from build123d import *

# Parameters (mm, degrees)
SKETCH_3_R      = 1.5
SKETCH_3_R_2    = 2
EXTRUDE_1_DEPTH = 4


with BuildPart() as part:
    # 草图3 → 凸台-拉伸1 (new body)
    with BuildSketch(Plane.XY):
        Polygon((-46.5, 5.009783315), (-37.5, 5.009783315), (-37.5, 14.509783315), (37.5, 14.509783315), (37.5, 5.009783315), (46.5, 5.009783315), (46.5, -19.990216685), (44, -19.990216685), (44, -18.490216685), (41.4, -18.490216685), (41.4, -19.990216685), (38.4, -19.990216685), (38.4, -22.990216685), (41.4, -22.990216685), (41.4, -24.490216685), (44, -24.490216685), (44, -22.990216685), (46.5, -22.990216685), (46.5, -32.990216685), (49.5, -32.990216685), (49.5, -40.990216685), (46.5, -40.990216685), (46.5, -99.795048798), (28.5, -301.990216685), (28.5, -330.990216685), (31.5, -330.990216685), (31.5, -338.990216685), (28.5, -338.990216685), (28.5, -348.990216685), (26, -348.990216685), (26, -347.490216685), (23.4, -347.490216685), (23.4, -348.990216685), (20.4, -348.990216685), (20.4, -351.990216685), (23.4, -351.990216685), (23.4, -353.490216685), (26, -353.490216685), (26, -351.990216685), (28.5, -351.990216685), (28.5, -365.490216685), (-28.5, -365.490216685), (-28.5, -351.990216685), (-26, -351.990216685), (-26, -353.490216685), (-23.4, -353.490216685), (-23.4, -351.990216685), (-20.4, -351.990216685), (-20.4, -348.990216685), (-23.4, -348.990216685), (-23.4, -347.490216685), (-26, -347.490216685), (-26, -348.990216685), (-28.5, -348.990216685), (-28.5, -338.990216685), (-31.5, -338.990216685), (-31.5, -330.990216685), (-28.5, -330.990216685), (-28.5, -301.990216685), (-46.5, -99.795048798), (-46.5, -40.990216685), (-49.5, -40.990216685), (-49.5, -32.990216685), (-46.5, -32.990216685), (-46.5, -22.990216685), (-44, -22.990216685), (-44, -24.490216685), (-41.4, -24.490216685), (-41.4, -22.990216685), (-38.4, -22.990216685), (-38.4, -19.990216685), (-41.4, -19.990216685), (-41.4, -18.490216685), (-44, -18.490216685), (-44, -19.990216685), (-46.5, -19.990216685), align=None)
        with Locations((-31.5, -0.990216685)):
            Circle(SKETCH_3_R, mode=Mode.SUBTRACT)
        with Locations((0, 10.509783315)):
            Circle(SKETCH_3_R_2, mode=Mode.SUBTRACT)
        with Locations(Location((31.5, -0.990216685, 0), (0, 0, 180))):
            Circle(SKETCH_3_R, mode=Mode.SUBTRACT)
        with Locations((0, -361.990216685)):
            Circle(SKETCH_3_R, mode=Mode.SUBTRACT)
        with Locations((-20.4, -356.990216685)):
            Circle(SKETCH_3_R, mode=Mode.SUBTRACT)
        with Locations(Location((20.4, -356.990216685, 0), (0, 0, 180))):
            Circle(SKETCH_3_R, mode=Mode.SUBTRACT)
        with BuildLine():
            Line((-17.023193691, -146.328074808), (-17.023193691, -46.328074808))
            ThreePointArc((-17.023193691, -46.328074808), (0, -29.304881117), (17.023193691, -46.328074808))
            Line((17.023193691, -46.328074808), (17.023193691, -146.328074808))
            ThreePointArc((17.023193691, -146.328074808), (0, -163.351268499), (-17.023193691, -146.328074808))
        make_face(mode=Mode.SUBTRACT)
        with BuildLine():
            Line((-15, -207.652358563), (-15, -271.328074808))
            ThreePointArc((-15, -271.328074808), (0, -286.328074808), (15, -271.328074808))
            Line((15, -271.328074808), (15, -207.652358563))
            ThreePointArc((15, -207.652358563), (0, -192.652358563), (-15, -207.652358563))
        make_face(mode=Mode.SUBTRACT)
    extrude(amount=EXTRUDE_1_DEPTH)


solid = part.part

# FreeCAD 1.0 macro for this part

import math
import FreeCAD as App
import Part
import Sketcher
Q = App.Units.Quantity


def add_polygon(sketch, points):
    """Adds a closed chain of lines whose ends are joined by coincident constraints."""
    first, n = sketch.GeometryCount, len(points)
    for a, b in zip(points, points[1:] + points[:1]):
        sketch.addGeometry(Part.LineSegment(App.Vector(*a, 0), App.Vector(*b, 0)), False)
    for i in range(n):
        sketch.addConstraint(Sketcher.Constraint("Coincident", first + i, 2, first + (i + 1) % n, 1))

doc = App.newDocument("Part")
body = doc.addObject("PartDesign::Body", "Body")

sketch1 = body.newObject("Sketcher::SketchObject", "Sketch")
sketch1.AttachmentSupport = (doc.getObject("XY_Plane"), [""])
sketch1.MapMode = "FlatFace"
add_polygon(sketch1, [(-37.5, 5), (-46.5, 5), (-46.5, -20), (-44, -20), (-44, -18.5), (-41.4, -18.5), (-41.4, -20), (-38.4, -20), (-38.4, -23), (-41.4, -23), (-41.4, -24.5), (-44, -24.5), (-44, -23), (-46.5, -23), (-46.5, -33), (-49.5, -33), (-49.5, -41), (-46.5, -41), (-46.5, -99.8), (-28.5, -302), (-28.5, -331), (-31.5, -331), (-31.5, -339), (-28.5, -339), (-28.5, -349), (-26, -349), (-26, -347.5), (-23.4, -347.5), (-23.4, -349), (-20.4, -349), (-20.4, -352), (-23.4, -352), (-23.4, -353.5), (-26, -353.5), (-26, -352), (-28.5, -352), (-28.5, -365.5), (28.5, -365.5), (28.5, -352), (26, -352), (26, -353.5), (23.4, -353.5), (23.4, -352), (20.4, -352), (20.4, -349), (23.4, -349), (23.4, -347.5), (26, -347.5), (26, -349), (28.5, -349), (28.5, -339), (31.5, -339), (31.5, -331), (28.5, -331), (28.5, -302), (46.5, -99.8), (46.5, -41), (49.5, -41), (49.5, -33), (46.5, -33), (46.5, -23), (44, -23), (44, -24.5), (41.4, -24.5), (41.4, -23), (38.4, -23), (38.4, -20), (41.4, -20), (41.4, -18.5), (44, -18.5), (44, -20), (46.5, -20), (46.5, 5), (37.5, 5), (37.5, 14.5), (-37.5, 14.5)])
sketch1.addGeometry(Part.Circle(App.Vector(20.4, -357, 0), App.Vector(0, 0, 1), 1.5), False)
sketch1.addGeometry(Part.Circle(App.Vector(0, -362, 0), App.Vector(0, 0, 1), 1.5), False)
sketch1.addGeometry(Part.Circle(App.Vector(-20.4, -357, 0), App.Vector(0, 0, 1), 1.5), False)
sketch1.addGeometry(Part.ArcOfCircle(Part.Circle(App.Vector(0, -207.7, 0), App.Vector(0, 0, 1), 15), math.radians(0), math.radians(180)), False)
sketch1.addGeometry(Part.LineSegment(App.Vector(15, -207.7, 0), App.Vector(15, -271.3, 0)), False)
sketch1.addGeometry(Part.ArcOfCircle(Part.Circle(App.Vector(0, -271.3, 0), App.Vector(0, 0, 1), 15), math.radians(180), math.radians(360)), False)
sketch1.addGeometry(Part.LineSegment(App.Vector(-15, -271.3, 0), App.Vector(-15, -207.7, 0)), False)
sketch1.addGeometry(Part.Circle(App.Vector(31.5, -1, 0), App.Vector(0, 0, 1), 1.5), False)
sketch1.addGeometry(Part.LineSegment(App.Vector(-17, -146.3, 0), App.Vector(-17, -46.3, 0)), False)
sketch1.addGeometry(Part.ArcOfCircle(Part.Circle(App.Vector(0, -46.3, 0), App.Vector(0, 0, 1), 17), math.radians(0), math.radians(180)), False)
sketch1.addGeometry(Part.LineSegment(App.Vector(17, -46.3, 0), App.Vector(17, -146.3, 0)), False)
sketch1.addGeometry(Part.ArcOfCircle(Part.Circle(App.Vector(0, -146.3, 0), App.Vector(0, 0, 1), 17), math.radians(180), math.radians(360)), False)
sketch1.addGeometry(Part.Circle(App.Vector(0, 10.5, 0), App.Vector(0, 0, 1), 2), False)
sketch1.addGeometry(Part.Circle(App.Vector(-31.5, -1, 0), App.Vector(0, 0, 1), 1.5), False)
sketch1.addConstraint([
    Sketcher.Constraint("Tangent", 79, 1, 80, 1),
    Sketcher.Constraint("Tangent", 80, 2, 81, 2),
    Sketcher.Constraint("Tangent", 81, 1, 82, 1),
    Sketcher.Constraint("Tangent", 82, 2, 79, 2),
    Sketcher.Constraint("Tangent", 84, 2, 85, 2),
    Sketcher.Constraint("Tangent", 85, 1, 86, 1),
    Sketcher.Constraint("Tangent", 86, 2, 87, 2),
    Sketcher.Constraint("Tangent", 87, 1, 84, 1),
    Sketcher.Constraint("Horizontal", 0),
    Sketcher.Constraint("Vertical", 1),
    Sketcher.Constraint("Horizontal", 2),
    Sketcher.Constraint("Vertical", 3),
    Sketcher.Constraint("Horizontal", 4),
    Sketcher.Constraint("Vertical", 5),
    Sketcher.Constraint("Horizontal", 6),
    Sketcher.Constraint("Vertical", 7),
    Sketcher.Constraint("Horizontal", 8),
    Sketcher.Constraint("Vertical", 9),
    Sketcher.Constraint("Horizontal", 10),
    Sketcher.Constraint("Vertical", 11),
    Sketcher.Constraint("Horizontal", 12),
    Sketcher.Constraint("Vertical", 13),
    Sketcher.Constraint("Horizontal", 14),
    Sketcher.Constraint("Vertical", 15),
    Sketcher.Constraint("Horizontal", 16),
    Sketcher.Constraint("Vertical", 17),
    Sketcher.Constraint("Vertical", 19),
    Sketcher.Constraint("Horizontal", 20),
    Sketcher.Constraint("Vertical", 21),
    Sketcher.Constraint("Horizontal", 22),
    Sketcher.Constraint("Vertical", 23),
    Sketcher.Constraint("Horizontal", 24),
    Sketcher.Constraint("Vertical", 25),
    Sketcher.Constraint("Horizontal", 26),
    Sketcher.Constraint("Vertical", 27),
    Sketcher.Constraint("Horizontal", 28),
    Sketcher.Constraint("Vertical", 29),
    Sketcher.Constraint("Horizontal", 30),
    Sketcher.Constraint("Vertical", 31),
    Sketcher.Constraint("Horizontal", 32),
    Sketcher.Constraint("Vertical", 33),
    Sketcher.Constraint("Horizontal", 34),
    Sketcher.Constraint("Vertical", 35),
    Sketcher.Constraint("Horizontal", 36),
    Sketcher.Constraint("Vertical", 37),
    Sketcher.Constraint("Horizontal", 38),
    Sketcher.Constraint("Vertical", 39),
    Sketcher.Constraint("Horizontal", 40),
    Sketcher.Constraint("Vertical", 41),
    Sketcher.Constraint("Horizontal", 42),
    Sketcher.Constraint("Vertical", 43),
    Sketcher.Constraint("Horizontal", 44),
    Sketcher.Constraint("Vertical", 45),
    Sketcher.Constraint("Horizontal", 46),
    Sketcher.Constraint("Vertical", 47),
    Sketcher.Constraint("Horizontal", 48),
    Sketcher.Constraint("Vertical", 49),
    Sketcher.Constraint("Horizontal", 50),
    Sketcher.Constraint("Vertical", 51),
    Sketcher.Constraint("Horizontal", 52),
    Sketcher.Constraint("Vertical", 53),
    Sketcher.Constraint("Vertical", 55),
    Sketcher.Constraint("Horizontal", 56),
    Sketcher.Constraint("Vertical", 57),
    Sketcher.Constraint("Horizontal", 58),
    Sketcher.Constraint("Vertical", 59),
    Sketcher.Constraint("Horizontal", 60),
    Sketcher.Constraint("Vertical", 61),
    Sketcher.Constraint("Horizontal", 62),
    Sketcher.Constraint("Vertical", 63),
    Sketcher.Constraint("Horizontal", 64),
    Sketcher.Constraint("Vertical", 65),
    Sketcher.Constraint("Horizontal", 66),
    Sketcher.Constraint("Vertical", 67),
    Sketcher.Constraint("Horizontal", 68),
    Sketcher.Constraint("Vertical", 69),
    Sketcher.Constraint("Horizontal", 70),
    Sketcher.Constraint("Vertical", 71),
    Sketcher.Constraint("Horizontal", 72),
    Sketcher.Constraint("Vertical", 73),
    Sketcher.Constraint("Horizontal", 74),
    Sketcher.Constraint("Vertical", 75),
    Sketcher.Constraint("Vertical", 80),
    Sketcher.Constraint("Vertical", 82),
    Sketcher.Constraint("Vertical", 84),
    Sketcher.Constraint("Vertical", 86),
    Sketcher.Constraint("Equal", 76, 77),
    Sketcher.Constraint("Equal", 77, 78),
    Sketcher.Constraint("Equal", 78, 83),
    Sketcher.Constraint("Equal", 83, 89),
    Sketcher.Constraint("Symmetric", 76, 3, 78, 3, -2),
    Sketcher.Constraint("Symmetric", 83, 3, 89, 3, -2),
    Sketcher.Constraint("Symmetric", 34, 2, 37, 2, -2),
    Sketcher.Constraint("Symmetric", 32, 2, 39, 2, -2),
    Sketcher.Constraint("Symmetric", 30, 2, 41, 2, -2),
    Sketcher.Constraint("Symmetric", 28, 2, 43, 2, -2),
    Sketcher.Constraint("Symmetric", 26, 2, 45, 2, -2),
    Sketcher.Constraint("Symmetric", 24, 2, 47, 2, -2),
    Sketcher.Constraint("Symmetric", 22, 2, 49, 2, -2),
    Sketcher.Constraint("Symmetric", 20, 2, 51, 2, -2),
    Sketcher.Constraint("Symmetric", 18, 2, 53, 2, -2),
    Sketcher.Constraint("Symmetric", 17, 2, 54, 2, -2),
    Sketcher.Constraint("Symmetric", 15, 2, 56, 2, -2),
    Sketcher.Constraint("Symmetric", 13, 2, 58, 2, -2),
    Sketcher.Constraint("Symmetric", 11, 2, 60, 2, -2),
    Sketcher.Constraint("Symmetric", 9, 2, 62, 2, -2),
    Sketcher.Constraint("Symmetric", 7, 2, 64, 2, -2),
    Sketcher.Constraint("Symmetric", 5, 2, 66, 2, -2),
    Sketcher.Constraint("Symmetric", 3, 2, 68, 2, -2),
    Sketcher.Constraint("Symmetric", 1, 2, 70, 2, -2),
    Sketcher.Constraint("Symmetric", 72, 2, 75, 2, -2),
    Sketcher.Constraint("PointOnObject", 77, 3, -2),
    Sketcher.Constraint("PointOnObject", 79, 3, -2),
    Sketcher.Constraint("PointOnObject", 85, 3, -2),
    Sketcher.Constraint("PointOnObject", 88, 3, -2),
    Sketcher.Constraint("Horizontal", 2, 2, 5, 2),
    Sketcher.Constraint("Horizontal", 8, 2, 11, 2),
    Sketcher.Constraint("Horizontal", 24, 2, 27, 2),
    Sketcher.Constraint("Horizontal", 30, 2, 33, 2),
    Sketcher.Constraint("Vertical", 5, 2, 8, 2),
    Sketcher.Constraint("Vertical", 3, 2, 10, 2),
    Sketcher.Constraint("Vertical", 1, 2, 12, 2),
    Sketcher.Constraint("Vertical", 13, 2, 16, 2),
    Sketcher.Constraint("Vertical", 89, 3, 20, 2),
    Sketcher.Constraint("Vertical", 19, 2, 22, 2),
    Sketcher.Constraint("Vertical", 78, 3, 28, 2),
    Sketcher.Constraint("Vertical", 27, 2, 30, 2),
    Sketcher.Constraint("Vertical", 25, 2, 32, 2),
    Sketcher.Constraint("Vertical", 23, 2, 34, 2),
    Sketcher.Constraint("Equal", 8, 14),
    Sketcher.Constraint("Equal", 16, 20),
    Sketcher.Constraint("Equal", 12, 24),
    Sketcher.Constraint("Equal", 10, 26),
    Sketcher.Constraint("Equal", 22, 28),
    Sketcher.Constraint("Equal", 66, 7),
    Sketcher.Constraint("Equal", 5, 9),
    Sketcher.Constraint("Equal", 15, 21),
    Sketcher.Constraint("Equal", 13, 23),
    Sketcher.Constraint("Equal", 11, 25),
    Sketcher.Constraint("Equal", 7, 29),
    Sketcher.Constraint("Equal", 27, 31),
    Sketcher.Constraint("Diameter", 76, Q("3 mm")),
    Sketcher.Constraint("Diameter", 88, Q("4 mm")),
    Sketcher.Constraint("Radius", 79, Q("15 mm")),
    Sketcher.Constraint("DistanceX", 0, 2, 0, 1, Q("9 mm")),
    Sketcher.Constraint("DistanceX", 6, 1, 6, 2, Q("3 mm")),
    Sketcher.Constraint("DistanceX", 36, 1, 36, 2, Q("57 mm")),
    Sketcher.Constraint("DistanceX", 74, 2, 74, 1, Q("75 mm")),
    Sketcher.Constraint("DistanceY", 1, 2, 1, 1, Q("25 mm")),
    Sketcher.Constraint("DistanceY", 13, 2, 13, 1, Q("10 mm")),
    Sketcher.Constraint("DistanceY", 15, 2, 15, 1, Q("8 mm")),
    Sketcher.Constraint("DistanceY", 19, 2, 19, 1, Q("29 mm")),
    Sketcher.Constraint("DistanceY", 84, 1, 84, 2, Q("100 mm")),
    Sketcher.Constraint("DistanceX", 2, 1, 2, 2, Q("2.5 mm")),
    Sketcher.Constraint("DistanceX", 4, 1, 4, 2, Q("2.6 mm")),
    Sketcher.Constraint("DistanceY", 3, 1, 3, 2, Q("1.5 mm")),
    Sketcher.Constraint("DistanceY", 35, 2, 35, 1, Q("13.5 mm")),
    Sketcher.Constraint("DistanceY", 73, 1, 73, 2, Q("9.5 mm")),
    Sketcher.Constraint("Radius", 85, Q("17.023194 mm")),
    Sketcher.Constraint("DistanceY", 17, 2, 17, 1, Q("58.804832 mm")),
    Sketcher.Constraint("DistanceY", 80, 2, 80, 1, Q("63.675716 mm")),
    Sketcher.Constraint("DistanceY", 79, 3, -1, 1, Q("207.652359 mm")),
    Sketcher.Constraint("DistanceY", 17, 2, -1, 1, Q("99.795049 mm")),
    Sketcher.Constraint("Distance", 18, Q("202.994793 mm")),
    Sketcher.Constraint("DistanceY", 76, 3, -1, 1, Q("356.990217 mm")),
    Sketcher.Constraint("DistanceY", 77, 3, -1, 1, Q("361.990217 mm")),
    Sketcher.Constraint("DistanceY", 83, 3, -1, 1, Q("0.990217 mm")),
    Sketcher.Constraint("DistanceY", 85, 3, -1, 1, Q("46.328075 mm")),
    Sketcher.Constraint("DistanceY", -1, 1, 88, 3, Q("10.509783 mm")),
])
pad1 = body.newObject("PartDesign::Pad", "Pad")
pad1.Profile = sketch1
pad1.Length = 4

doc.recompute()
